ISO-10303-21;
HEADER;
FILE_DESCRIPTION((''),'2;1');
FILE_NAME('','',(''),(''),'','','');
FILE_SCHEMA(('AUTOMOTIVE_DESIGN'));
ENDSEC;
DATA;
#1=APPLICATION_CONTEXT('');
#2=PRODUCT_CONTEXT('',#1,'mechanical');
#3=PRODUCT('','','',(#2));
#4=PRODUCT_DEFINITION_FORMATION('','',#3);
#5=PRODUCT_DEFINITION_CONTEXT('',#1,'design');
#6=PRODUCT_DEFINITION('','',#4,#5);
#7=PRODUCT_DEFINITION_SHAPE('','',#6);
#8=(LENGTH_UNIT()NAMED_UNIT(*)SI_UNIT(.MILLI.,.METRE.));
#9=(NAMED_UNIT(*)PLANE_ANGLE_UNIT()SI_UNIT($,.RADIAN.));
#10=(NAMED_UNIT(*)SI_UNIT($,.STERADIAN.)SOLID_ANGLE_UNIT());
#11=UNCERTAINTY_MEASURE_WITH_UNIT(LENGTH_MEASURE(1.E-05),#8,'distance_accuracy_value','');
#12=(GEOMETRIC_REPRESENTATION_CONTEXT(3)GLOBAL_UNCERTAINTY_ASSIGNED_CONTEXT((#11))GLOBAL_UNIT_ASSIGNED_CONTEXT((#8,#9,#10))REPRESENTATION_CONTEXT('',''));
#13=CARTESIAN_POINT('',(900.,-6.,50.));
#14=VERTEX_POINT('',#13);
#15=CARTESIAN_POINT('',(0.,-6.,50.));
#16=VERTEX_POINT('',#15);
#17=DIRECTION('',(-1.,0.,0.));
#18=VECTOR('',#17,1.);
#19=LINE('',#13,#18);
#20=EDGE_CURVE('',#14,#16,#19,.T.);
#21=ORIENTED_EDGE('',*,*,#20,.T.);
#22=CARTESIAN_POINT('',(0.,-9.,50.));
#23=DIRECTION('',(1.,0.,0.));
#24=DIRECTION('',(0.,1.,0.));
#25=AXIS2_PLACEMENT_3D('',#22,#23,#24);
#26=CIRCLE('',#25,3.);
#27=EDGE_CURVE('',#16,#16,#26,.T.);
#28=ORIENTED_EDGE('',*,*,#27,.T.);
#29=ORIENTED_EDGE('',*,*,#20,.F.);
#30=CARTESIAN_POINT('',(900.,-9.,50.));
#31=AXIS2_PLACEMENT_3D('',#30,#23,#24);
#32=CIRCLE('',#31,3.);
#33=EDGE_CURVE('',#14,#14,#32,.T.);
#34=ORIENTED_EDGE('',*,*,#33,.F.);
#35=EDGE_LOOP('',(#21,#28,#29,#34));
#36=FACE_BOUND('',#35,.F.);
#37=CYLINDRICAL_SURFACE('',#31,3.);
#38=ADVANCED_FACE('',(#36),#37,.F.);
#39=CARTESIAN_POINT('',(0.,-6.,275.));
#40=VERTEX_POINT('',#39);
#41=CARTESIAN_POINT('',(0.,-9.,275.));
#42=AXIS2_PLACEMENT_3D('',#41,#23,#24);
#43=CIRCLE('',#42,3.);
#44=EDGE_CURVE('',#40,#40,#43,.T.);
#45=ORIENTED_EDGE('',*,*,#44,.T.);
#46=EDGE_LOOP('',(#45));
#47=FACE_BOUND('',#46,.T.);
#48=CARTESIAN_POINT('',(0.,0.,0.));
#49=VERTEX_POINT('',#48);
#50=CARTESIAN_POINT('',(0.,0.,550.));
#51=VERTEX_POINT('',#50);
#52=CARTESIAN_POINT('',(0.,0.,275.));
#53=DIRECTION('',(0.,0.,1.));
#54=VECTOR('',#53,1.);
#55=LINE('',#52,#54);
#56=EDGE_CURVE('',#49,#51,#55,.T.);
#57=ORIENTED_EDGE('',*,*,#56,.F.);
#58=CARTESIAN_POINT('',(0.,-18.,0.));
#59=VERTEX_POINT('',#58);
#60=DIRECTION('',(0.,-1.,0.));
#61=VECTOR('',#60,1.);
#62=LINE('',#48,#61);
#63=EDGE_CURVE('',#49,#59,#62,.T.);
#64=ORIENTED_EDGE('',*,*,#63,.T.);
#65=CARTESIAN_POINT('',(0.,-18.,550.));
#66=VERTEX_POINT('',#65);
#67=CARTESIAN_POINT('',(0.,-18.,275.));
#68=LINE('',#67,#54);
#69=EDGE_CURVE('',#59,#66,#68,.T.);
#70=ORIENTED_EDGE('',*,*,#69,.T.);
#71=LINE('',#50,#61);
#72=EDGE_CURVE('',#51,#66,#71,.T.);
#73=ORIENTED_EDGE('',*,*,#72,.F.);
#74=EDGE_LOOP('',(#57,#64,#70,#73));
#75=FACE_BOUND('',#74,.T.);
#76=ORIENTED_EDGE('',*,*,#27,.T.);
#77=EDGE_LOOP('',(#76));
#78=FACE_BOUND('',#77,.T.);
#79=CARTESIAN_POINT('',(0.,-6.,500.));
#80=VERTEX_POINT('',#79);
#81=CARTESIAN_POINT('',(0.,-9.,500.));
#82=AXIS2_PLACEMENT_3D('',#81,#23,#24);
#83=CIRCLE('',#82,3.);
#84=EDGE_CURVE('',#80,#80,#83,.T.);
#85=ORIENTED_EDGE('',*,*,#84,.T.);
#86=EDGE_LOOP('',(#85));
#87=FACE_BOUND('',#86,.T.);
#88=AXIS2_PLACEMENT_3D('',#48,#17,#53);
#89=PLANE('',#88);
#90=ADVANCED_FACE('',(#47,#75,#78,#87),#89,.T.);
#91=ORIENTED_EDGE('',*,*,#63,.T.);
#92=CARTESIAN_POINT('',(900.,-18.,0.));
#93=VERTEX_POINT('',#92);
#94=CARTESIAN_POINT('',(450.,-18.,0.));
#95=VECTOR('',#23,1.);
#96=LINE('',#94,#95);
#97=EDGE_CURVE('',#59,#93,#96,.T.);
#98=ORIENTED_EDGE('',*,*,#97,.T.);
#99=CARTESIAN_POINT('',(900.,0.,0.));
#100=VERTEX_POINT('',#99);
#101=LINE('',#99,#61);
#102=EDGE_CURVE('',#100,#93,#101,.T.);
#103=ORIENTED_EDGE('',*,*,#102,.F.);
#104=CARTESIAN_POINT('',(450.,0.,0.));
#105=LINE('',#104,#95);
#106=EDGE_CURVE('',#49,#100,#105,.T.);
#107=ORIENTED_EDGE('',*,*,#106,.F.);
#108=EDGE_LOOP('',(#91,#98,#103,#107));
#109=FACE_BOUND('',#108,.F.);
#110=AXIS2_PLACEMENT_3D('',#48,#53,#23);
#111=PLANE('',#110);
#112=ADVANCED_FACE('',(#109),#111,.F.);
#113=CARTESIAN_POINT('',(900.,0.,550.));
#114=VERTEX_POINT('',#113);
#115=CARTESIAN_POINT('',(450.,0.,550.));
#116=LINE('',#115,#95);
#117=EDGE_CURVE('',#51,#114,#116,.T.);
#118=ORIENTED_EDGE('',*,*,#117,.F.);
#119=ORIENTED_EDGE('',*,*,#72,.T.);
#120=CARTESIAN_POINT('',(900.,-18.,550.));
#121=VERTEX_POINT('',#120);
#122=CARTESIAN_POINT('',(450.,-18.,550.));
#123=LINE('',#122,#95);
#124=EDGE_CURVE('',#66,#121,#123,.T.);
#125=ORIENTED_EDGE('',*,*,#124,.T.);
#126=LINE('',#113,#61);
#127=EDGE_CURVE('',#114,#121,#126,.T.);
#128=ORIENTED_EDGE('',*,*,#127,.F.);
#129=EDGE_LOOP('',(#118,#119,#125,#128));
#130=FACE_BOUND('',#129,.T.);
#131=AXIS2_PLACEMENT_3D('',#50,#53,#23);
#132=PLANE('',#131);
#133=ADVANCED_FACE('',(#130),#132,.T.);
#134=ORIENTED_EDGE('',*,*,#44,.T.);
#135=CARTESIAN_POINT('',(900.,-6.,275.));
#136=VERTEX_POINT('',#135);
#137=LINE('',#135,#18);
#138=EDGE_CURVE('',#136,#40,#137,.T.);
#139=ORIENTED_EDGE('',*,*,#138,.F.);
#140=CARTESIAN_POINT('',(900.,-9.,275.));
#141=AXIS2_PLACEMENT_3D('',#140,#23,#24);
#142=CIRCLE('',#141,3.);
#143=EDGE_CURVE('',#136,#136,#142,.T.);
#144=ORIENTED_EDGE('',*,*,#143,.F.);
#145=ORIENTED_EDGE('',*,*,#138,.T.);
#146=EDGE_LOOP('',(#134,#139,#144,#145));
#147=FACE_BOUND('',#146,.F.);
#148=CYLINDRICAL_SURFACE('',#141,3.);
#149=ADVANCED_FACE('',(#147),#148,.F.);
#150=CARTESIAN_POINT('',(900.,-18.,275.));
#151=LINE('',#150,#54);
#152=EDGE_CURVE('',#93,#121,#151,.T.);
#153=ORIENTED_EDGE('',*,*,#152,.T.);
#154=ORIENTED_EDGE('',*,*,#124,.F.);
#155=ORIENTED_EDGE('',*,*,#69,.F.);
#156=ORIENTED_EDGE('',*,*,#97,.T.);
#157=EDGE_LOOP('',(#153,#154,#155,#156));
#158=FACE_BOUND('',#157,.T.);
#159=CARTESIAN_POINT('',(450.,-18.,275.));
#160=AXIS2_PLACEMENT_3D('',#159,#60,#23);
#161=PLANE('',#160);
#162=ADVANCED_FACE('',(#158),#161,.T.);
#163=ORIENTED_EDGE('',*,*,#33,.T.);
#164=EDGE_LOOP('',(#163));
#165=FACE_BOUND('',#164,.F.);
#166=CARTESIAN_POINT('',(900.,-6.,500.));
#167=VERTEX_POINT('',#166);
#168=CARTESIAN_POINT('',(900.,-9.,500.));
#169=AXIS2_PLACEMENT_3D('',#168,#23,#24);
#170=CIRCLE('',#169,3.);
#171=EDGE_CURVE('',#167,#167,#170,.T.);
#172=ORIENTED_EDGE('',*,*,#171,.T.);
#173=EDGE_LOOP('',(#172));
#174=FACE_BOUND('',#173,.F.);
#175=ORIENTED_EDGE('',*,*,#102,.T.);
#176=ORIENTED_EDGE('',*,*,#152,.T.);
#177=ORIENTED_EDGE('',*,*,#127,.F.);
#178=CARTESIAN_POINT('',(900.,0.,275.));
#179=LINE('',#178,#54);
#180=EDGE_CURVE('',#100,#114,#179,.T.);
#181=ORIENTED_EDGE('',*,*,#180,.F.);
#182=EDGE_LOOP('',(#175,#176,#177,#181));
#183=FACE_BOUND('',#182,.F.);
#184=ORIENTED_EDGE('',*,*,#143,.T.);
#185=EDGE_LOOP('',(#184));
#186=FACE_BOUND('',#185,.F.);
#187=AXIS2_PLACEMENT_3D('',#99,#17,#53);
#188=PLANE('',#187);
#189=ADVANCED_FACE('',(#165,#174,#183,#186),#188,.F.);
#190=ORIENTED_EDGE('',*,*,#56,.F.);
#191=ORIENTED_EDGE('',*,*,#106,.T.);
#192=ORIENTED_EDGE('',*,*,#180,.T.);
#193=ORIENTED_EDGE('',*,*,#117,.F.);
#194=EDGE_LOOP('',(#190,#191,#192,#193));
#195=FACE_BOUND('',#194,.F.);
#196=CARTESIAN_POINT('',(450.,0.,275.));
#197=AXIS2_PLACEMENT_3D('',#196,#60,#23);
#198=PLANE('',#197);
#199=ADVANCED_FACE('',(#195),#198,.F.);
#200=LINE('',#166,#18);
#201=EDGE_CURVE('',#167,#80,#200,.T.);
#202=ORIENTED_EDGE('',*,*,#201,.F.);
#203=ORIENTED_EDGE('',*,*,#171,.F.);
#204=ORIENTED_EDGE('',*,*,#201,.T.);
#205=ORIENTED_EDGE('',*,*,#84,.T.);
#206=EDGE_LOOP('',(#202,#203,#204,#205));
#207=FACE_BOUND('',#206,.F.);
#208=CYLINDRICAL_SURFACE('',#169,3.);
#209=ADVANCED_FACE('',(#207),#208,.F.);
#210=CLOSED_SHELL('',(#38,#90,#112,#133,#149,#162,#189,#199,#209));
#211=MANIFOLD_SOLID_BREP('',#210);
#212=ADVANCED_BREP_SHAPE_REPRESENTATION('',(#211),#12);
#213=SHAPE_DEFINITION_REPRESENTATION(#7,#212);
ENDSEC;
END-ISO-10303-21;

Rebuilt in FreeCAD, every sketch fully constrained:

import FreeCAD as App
import Part
import Sketcher
from FreeCAD import Vector


def add_polygon(sketch, points):
    """Adds a closed chain of lines whose ends are joined by coincident constraints."""
    first, n = sketch.GeometryCount, len(points)
    for a, b in zip(points, points[1:] + points[:1]):
        sketch.addGeometry(Part.LineSegment(App.Vector(*a, 0), App.Vector(*b, 0)), False)
    for i in range(n):
        sketch.addConstraint(Sketcher.Constraint("Coincident", first + i, 2, first + (i + 1) % n, 1))

doc = App.newDocument("Part")
params = doc.addObject("Spreadsheet::Sheet", "Params")
for row, (alias, value) in enumerate([
    ("sketch1_width", "900 mm"),
    ("sketch1_height", "550 mm"),
    ("pad1_length", "18 mm"),
    ("sketch2_diameter", "6 mm"),
], start=1):
    params.set(f"A{row}", alias)
    params.set(f"B{row}", "=" + value)
    params.setAlias(f"B{row}", alias)

body = doc.addObject("PartDesign::Body", "Body")

sketch1 = body.newObject("Sketcher::SketchObject", "Sketch")
sketch1.AttachmentSupport = (doc.getObject("XZ_Plane"), [""])
sketch1.MapMode = "FlatFace"
add_polygon(sketch1, [(0, 550), (0, 0), (900, 0), (900, 550)])
sketch1.addConstraint([
    Sketcher.Constraint("Vertical", 0),
    Sketcher.Constraint("Horizontal", 1),
    Sketcher.Constraint("Vertical", 2),
    Sketcher.Constraint("Horizontal", 3),
    Sketcher.Constraint("Coincident", 0, 2, -1, 1),
    Sketcher.Constraint("DistanceX", 1, 1, 1, 2, 900.0),
    Sketcher.Constraint("DistanceY", 0, 2, 0, 1, 550.0),
])
sketch1.setExpression("Constraints[9]", "Params.sketch1_width")
sketch1.setExpression("Constraints[10]", "Params.sketch1_height")
pad1 = body.newObject("PartDesign::Pad", "Pad")
pad1.Profile = sketch1
pad1.setExpression("Length", "Params.pad1_length")

sketch2 = body.newObject("Sketcher::SketchObject", "Sketch001")
sketch2.AttachmentSupport = (doc.getObject("YZ_Plane"), [""])
sketch2.MapMode = "FlatFace"
sketch2.AttachmentOffset = App.Placement(Vector(0, 0, 900), App.Rotation())
sketch2.addGeometry([
    Part.Circle(Vector(-9, 50, 0), Vector(0, 0, 1), 3),
    Part.Circle(Vector(-9, 275, 0), Vector(0, 0, 1), 3),
    Part.Circle(Vector(-9, 500, 0), Vector(0, 0, 1), 3),
], False)
sketch2.addConstraint([
    Sketcher.Constraint("Equal", 0, 1),
    Sketcher.Constraint("Equal", 1, 2),
    Sketcher.Constraint("Vertical", 0, 3, 1, 3),
    Sketcher.Constraint("Vertical", 1, 3, 2, 3),
    Sketcher.Constraint("Diameter", 0, 6.0),
    Sketcher.Constraint("DistanceX", 0, 3, -1, 1, 9.0),
    Sketcher.Constraint("DistanceY", -1, 1, 0, 3, 50.0),
    Sketcher.Constraint("DistanceY", -1, 1, 1, 3, 275.0),
    Sketcher.Constraint("DistanceY", -1, 1, 2, 3, 500.0),
])
sketch2.setExpression("Constraints[4]", "Params.sketch2_diameter")
pocket1 = body.newObject("PartDesign::Pocket", "Pocket")
pocket1.Profile = sketch2
pocket1.Type = "ThroughAll"

doc.recompute()
